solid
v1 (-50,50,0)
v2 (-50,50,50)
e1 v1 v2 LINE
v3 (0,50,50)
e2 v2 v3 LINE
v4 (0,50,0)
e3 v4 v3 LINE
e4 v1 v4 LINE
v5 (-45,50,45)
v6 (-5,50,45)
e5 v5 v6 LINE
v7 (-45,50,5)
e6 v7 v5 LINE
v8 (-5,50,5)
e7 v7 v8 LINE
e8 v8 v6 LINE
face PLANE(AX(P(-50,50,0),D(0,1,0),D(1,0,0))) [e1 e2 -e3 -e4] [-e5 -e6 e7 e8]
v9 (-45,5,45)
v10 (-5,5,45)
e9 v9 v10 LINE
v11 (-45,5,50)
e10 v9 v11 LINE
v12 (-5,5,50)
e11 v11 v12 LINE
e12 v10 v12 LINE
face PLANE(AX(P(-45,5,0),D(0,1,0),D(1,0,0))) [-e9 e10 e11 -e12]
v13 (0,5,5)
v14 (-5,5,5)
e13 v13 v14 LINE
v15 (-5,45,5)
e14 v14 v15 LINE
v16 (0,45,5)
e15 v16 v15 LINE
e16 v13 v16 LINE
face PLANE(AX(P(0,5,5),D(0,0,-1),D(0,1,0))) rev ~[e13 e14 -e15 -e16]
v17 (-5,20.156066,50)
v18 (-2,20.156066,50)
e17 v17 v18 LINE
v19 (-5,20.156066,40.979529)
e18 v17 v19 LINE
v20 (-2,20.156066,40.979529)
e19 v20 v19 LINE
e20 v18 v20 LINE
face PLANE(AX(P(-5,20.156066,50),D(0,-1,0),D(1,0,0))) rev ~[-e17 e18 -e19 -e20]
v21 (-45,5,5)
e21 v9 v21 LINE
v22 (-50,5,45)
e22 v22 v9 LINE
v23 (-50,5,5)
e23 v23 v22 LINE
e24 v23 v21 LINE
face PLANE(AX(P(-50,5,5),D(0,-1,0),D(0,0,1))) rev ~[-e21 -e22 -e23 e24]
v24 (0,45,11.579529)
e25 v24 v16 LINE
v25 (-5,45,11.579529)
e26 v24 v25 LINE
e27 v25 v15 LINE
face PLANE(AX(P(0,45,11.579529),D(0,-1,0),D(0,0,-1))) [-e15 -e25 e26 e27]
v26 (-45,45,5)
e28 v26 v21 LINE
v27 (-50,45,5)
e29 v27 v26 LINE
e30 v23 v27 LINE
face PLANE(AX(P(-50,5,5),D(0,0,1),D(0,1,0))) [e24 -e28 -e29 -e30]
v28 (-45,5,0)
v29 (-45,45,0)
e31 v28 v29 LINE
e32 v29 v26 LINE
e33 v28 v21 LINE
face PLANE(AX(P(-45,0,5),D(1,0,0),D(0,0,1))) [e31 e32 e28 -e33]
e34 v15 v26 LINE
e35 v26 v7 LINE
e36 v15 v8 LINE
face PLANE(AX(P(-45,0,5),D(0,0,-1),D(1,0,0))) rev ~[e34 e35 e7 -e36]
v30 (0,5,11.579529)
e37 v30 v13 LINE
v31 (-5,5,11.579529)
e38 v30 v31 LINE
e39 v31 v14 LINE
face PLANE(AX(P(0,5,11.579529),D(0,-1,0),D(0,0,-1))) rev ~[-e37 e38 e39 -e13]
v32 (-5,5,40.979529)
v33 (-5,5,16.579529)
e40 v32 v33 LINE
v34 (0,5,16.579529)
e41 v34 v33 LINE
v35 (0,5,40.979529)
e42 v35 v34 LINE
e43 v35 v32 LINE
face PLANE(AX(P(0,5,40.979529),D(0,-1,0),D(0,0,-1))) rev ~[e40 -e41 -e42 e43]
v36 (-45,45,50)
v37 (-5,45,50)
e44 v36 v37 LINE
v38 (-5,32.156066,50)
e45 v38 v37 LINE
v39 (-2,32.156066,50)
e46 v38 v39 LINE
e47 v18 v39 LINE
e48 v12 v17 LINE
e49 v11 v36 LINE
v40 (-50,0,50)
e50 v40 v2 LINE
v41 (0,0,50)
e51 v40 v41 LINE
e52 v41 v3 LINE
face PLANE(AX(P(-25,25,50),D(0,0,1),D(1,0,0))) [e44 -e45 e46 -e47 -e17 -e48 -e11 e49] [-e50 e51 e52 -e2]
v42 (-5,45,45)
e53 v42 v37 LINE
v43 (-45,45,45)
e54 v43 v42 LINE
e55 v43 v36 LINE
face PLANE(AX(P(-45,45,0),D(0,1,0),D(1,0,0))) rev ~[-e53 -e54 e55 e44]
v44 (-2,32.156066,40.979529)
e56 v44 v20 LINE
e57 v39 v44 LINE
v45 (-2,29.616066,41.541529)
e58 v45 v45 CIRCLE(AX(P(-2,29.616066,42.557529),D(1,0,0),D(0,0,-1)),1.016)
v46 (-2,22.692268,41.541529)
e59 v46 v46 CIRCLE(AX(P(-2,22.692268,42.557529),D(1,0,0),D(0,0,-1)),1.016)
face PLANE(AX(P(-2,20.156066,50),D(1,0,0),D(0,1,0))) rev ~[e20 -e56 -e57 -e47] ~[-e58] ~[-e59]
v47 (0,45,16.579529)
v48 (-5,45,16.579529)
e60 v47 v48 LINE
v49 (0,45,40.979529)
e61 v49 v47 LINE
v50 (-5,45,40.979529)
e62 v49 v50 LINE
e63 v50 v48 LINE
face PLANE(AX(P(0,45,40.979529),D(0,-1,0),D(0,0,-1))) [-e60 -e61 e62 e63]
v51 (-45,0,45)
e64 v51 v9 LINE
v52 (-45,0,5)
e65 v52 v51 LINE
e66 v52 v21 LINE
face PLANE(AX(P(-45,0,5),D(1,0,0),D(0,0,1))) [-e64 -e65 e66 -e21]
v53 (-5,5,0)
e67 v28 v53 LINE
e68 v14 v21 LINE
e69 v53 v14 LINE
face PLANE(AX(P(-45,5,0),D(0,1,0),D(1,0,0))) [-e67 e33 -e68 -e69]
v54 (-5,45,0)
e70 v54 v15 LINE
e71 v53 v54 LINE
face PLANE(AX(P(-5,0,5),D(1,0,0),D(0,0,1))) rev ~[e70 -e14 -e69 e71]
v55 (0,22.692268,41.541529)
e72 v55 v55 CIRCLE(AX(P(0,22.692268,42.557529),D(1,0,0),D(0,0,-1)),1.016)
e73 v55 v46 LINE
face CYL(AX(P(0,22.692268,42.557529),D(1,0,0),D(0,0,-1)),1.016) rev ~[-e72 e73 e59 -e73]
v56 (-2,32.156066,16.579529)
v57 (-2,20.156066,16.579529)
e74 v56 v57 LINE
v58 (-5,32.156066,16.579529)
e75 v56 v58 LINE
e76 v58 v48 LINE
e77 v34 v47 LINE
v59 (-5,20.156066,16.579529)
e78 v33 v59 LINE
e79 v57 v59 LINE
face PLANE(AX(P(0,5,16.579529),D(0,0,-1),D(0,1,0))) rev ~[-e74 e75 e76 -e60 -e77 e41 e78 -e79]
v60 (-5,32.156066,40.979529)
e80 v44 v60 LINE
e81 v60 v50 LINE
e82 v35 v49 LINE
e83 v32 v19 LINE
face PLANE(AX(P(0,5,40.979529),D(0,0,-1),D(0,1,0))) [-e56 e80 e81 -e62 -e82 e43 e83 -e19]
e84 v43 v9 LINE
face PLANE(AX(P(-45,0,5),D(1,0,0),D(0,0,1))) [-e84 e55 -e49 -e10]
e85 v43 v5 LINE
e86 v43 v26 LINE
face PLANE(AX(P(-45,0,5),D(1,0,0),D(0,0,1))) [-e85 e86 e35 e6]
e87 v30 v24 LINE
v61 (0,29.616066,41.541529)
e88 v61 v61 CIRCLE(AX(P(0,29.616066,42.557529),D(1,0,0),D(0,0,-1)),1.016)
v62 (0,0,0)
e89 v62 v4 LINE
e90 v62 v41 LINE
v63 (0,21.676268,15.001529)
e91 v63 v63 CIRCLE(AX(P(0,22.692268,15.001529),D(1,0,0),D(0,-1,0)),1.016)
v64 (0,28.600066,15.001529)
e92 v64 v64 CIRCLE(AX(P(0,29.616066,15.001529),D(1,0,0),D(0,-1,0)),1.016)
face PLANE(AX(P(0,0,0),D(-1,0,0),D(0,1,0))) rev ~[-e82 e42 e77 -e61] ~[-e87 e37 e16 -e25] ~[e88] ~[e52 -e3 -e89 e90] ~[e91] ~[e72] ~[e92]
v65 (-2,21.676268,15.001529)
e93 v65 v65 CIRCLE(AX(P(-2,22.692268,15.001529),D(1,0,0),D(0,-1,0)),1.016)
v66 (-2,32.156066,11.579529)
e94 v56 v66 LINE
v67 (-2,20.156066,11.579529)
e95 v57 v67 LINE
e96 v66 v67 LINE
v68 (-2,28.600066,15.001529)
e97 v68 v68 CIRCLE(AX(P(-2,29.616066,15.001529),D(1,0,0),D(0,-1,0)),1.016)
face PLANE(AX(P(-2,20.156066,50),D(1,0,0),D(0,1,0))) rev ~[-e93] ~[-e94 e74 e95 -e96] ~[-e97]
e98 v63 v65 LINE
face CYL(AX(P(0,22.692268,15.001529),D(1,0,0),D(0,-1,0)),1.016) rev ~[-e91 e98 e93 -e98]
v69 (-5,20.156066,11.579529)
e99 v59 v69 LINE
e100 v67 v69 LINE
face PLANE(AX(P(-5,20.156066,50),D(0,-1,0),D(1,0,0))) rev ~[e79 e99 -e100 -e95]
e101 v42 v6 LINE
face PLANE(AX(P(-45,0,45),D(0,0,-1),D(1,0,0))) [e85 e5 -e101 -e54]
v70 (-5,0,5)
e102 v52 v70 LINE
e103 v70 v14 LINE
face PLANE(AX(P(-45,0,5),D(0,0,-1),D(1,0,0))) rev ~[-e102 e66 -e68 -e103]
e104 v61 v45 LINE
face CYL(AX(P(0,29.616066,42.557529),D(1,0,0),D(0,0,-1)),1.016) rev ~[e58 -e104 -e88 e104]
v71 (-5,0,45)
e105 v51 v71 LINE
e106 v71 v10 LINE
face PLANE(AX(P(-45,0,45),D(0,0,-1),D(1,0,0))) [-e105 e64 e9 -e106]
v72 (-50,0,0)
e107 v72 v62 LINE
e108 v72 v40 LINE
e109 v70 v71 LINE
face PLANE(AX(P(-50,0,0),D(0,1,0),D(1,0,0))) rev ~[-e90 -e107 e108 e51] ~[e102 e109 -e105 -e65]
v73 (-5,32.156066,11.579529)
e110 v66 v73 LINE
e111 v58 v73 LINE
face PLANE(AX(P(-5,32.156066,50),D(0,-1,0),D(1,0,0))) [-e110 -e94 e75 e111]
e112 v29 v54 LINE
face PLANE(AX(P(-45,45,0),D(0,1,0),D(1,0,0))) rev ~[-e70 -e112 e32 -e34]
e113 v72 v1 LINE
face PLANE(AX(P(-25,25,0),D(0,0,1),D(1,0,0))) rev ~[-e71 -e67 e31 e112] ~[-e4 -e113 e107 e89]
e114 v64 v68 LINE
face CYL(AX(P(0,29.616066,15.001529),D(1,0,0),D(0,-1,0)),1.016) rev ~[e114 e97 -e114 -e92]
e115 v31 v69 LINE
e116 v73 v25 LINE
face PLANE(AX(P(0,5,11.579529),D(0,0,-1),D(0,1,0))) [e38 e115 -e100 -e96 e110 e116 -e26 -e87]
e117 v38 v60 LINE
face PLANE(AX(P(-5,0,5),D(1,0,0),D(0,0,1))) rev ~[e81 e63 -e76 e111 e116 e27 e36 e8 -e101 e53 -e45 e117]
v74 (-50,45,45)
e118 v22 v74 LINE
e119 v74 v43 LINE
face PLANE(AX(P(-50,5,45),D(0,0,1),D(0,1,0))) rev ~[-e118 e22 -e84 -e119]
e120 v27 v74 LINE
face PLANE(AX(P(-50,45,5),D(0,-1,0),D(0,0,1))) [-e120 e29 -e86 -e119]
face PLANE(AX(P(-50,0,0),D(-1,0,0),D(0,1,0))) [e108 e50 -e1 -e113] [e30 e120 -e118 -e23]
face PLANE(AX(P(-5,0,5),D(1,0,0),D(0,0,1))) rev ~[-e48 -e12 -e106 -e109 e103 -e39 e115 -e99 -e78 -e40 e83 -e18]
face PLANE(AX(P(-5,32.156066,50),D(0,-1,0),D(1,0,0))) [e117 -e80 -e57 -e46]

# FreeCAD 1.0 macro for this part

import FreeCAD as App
import Part
import Sketcher

V = App.Vector
Q = App.Units.Quantity

doc = App.newDocument("Part")
params = doc.addObject("Spreadsheet::Sheet", "Params")
for row, (alias, value) in enumerate([
    ("sketch1_width", "50 mm"),
    ("sketch1_width2", "40 mm"),
    ("pad1_length", "50 mm"),
    ("sketch2_width", "40 mm"),
    ("pocket1_length", "50 mm"),
    ("sketch3_width", "40 mm"),
    ("pocket2_length", "10 mm"),
    ("sketch4_width", "40 mm"),
    ("sketch4_height", "24.4 mm"),
    ("pocket3_length", "10 mm"),
    ("pocket4_length", "10 mm"),
    ("sketch6_width", "3 mm"),
    ("sketch6_height", "12 mm"),
    ("pocket5_length", "40 mm"),
], start=1):
    params.set(f"A{row}", alias)
    params.set(f"B{row}", "=" + value)
    params.setAlias(f"B{row}", alias)

body = doc.addObject("PartDesign::Body", "Body")

sketch1 = doc.addObject("Sketcher::SketchObject", "Sketch")
body.addObject(sketch1)
sketch1.AttachmentSupport = (doc.XY_Plane, [""])
sketch1.MapMode = "FlatFace"
sketch1.addGeometry([
    Part.LineSegment(V(-50, 50, 0), V(-50, 0, 0)),
    Part.LineSegment(V(-50, 0, 0), V(0, 0, 0)),
    Part.LineSegment(V(0, 0, 0), V(0, 50, 0)),
    Part.LineSegment(V(0, 50, 0), V(-50, 50, 0)),
    Part.LineSegment(V(-5, 5, 0), V(-45, 5, 0)),
    Part.LineSegment(V(-45, 5, 0), V(-45, 45, 0)),
    Part.LineSegment(V(-45, 45, 0), V(-5, 45, 0)),
    Part.LineSegment(V(-5, 45, 0), V(-5, 5, 0)),
], False)
sketch1.addConstraint([
    Sketcher.Constraint("Coincident", 0, 2, 1, 1),
    Sketcher.Constraint("Coincident", 1, 2, 2, 1),
    Sketcher.Constraint("Coincident", 2, 2, 3, 1),
    Sketcher.Constraint("Coincident", 3, 2, 0, 1),
    Sketcher.Constraint("Coincident", 4, 2, 5, 1),
    Sketcher.Constraint("Coincident", 5, 2, 6, 1),
    Sketcher.Constraint("Coincident", 6, 2, 7, 1),
    Sketcher.Constraint("Coincident", 7, 2, 4, 1),
    Sketcher.Constraint("Vertical", 0),
    Sketcher.Constraint("Horizontal", 1),
    Sketcher.Constraint("Vertical", 2),
    Sketcher.Constraint("Horizontal", 3),
    Sketcher.Constraint("Horizontal", 4),
    Sketcher.Constraint("Vertical", 5),
    Sketcher.Constraint("Horizontal", 6),
    Sketcher.Constraint("Vertical", 7),
    Sketcher.Constraint("Coincident", 1, 2, -1, 1),
    Sketcher.Constraint("Equal", 3, 0),
    Sketcher.Constraint("Equal", 6, 5),
    Sketcher.Constraint("DistanceX", 1, 1, 1, 2, Q("50 mm")),
    Sketcher.Constraint("DistanceX", 4, 2, 4, 1, Q("40 mm")),
    Sketcher.Constraint("DistanceX", 4, 2, -1, 1, Q("45 mm")),
    Sketcher.Constraint("DistanceY", -1, 1, 4, 2, Q("5 mm")),
])
sketch1.setExpression("Constraints[19]", "Params.sketch1_width")
sketch1.setExpression("Constraints[20]", "Params.sketch1_width2")
pad1 = doc.addObject("PartDesign::Pad", "Pad")
body.addObject(pad1)
pad1.Profile = sketch1
pad1.setExpression("Length", "Params.pad1_length")

sketch2 = doc.addObject("Sketcher::SketchObject", "Sketch001")
body.addObject(sketch2)
sketch2.AttachmentSupport = (doc.XZ_Plane, [""])
sketch2.MapMode = "FlatFace"
sketch2.addGeometry([
    Part.LineSegment(V(-45, 45, 0), V(-45, 5, 0)),
    Part.LineSegment(V(-45, 5, 0), V(-5, 5, 0)),
    Part.LineSegment(V(-5, 5, 0), V(-5, 45, 0)),
    Part.LineSegment(V(-5, 45, 0), V(-45, 45, 0)),
], False)
sketch2.addConstraint([
    Sketcher.Constraint("Coincident", 0, 2, 1, 1),
    Sketcher.Constraint("Coincident", 1, 2, 2, 1),
    Sketcher.Constraint("Coincident", 2, 2, 3, 1),
    Sketcher.Constraint("Coincident", 3, 2, 0, 1),
    Sketcher.Constraint("Vertical", 0),
    Sketcher.Constraint("Horizontal", 1),
    Sketcher.Constraint("Vertical", 2),
    Sketcher.Constraint("Horizontal", 3),
    Sketcher.Constraint("Equal", 3, 0),
    Sketcher.Constraint("DistanceX", 1, 1, 1, 2, Q("40 mm")),
    Sketcher.Constraint("DistanceX", 0, 2, -1, 1, Q("45 mm")),
    Sketcher.Constraint("DistanceY", -1, 1, 0, 2, Q("5 mm")),
])
sketch2.setExpression("Constraints[9]", "Params.sketch2_width")
pocket1 = doc.addObject("PartDesign::Pocket", "Pocket")
body.addObject(pocket1)
pocket1.Profile = sketch2
pocket1.setExpression("Length", "Params.pocket1_length")

sketch3 = doc.addObject("Sketcher::SketchObject", "Sketch002")
body.addObject(sketch3)
sketch3.AttachmentSupport = (doc.YZ_Plane, [""])
sketch3.MapMode = "FlatFace"
sketch3.AttachmentOffset = App.Placement(V(0, 0, -50), App.Rotation())
sketch3.addGeometry([
    Part.LineSegment(V(45, 5, 0), V(5, 5, 0)),
    Part.LineSegment(V(5, 5, 0), V(5, 45, 0)),
    Part.LineSegment(V(5, 45, 0), V(45, 45, 0)),
    Part.LineSegment(V(45, 45, 0), V(45, 5, 0)),
], False)
sketch3.addConstraint([
    Sketcher.Constraint("Coincident", 0, 2, 1, 1),
    Sketcher.Constraint("Coincident", 1, 2, 2, 1),
    Sketcher.Constraint("Coincident", 2, 2, 3, 1),
    Sketcher.Constraint("Coincident", 3, 2, 0, 1),
    Sketcher.Constraint("Horizontal", 0),
    Sketcher.Constraint("Vertical", 1),
    Sketcher.Constraint("Horizontal", 2),
    Sketcher.Constraint("Vertical", 3),
    Sketcher.Constraint("Equal", 2, 1),
    Sketcher.Constraint("DistanceX", 0, 2, 0, 1, Q("40 mm")),
    Sketcher.Constraint("DistanceX", -1, 1, 0, 2, Q("5 mm")),
    Sketcher.Constraint("DistanceY", -1, 1, 0, 2, Q("5 mm")),
])
sketch3.setExpression("Constraints[9]", "Params.sketch3_width")
pocket2 = doc.addObject("PartDesign::Pocket", "Pocket001")
body.addObject(pocket2)
pocket2.Profile = sketch3
pocket2.setExpression("Length", "Params.pocket2_length")
pocket2.Reversed = True

sketch4 = doc.addObject("Sketcher::SketchObject", "Sketch003")
body.addObject(sketch4)
sketch4.AttachmentSupport = (doc.YZ_Plane, [""])
sketch4.MapMode = "FlatFace"
sketch4.addGeometry([
    Part.LineSegment(V(45, 41, 0), V(5, 41, 0)),
    Part.LineSegment(V(5, 41, 0), V(5, 17, 0)),
    Part.LineSegment(V(5, 17, 0), V(45, 17, 0)),
    Part.LineSegment(V(45, 17, 0), V(45, 41, 0)),
    Part.LineSegment(V(45, 12, 0), V(5, 12, 0)),
    Part.LineSegment(V(5, 12, 0), V(5, 5, 0)),
    Part.LineSegment(V(5, 5, 0), V(45, 5, 0)),
    Part.LineSegment(V(45, 5, 0), V(45, 12, 0)),
], False)
sketch4.addConstraint([
    Sketcher.Constraint("Coincident", 0, 2, 1, 1),
    Sketcher.Constraint("Coincident", 1, 2, 2, 1),
    Sketcher.Constraint("Coincident", 2, 2, 3, 1),
    Sketcher.Constraint("Coincident", 3, 2, 0, 1),
    Sketcher.Constraint("Coincident", 4, 2, 5, 1),
    Sketcher.Constraint("Coincident", 5, 2, 6, 1),
    Sketcher.Constraint("Coincident", 6, 2, 7, 1),
    Sketcher.Constraint("Coincident", 7, 2, 4, 1),
    Sketcher.Constraint("Horizontal", 0),
    Sketcher.Constraint("Vertical", 1),
    Sketcher.Constraint("Horizontal", 2),
    Sketcher.Constraint("Vertical", 3),
    Sketcher.Constraint("Horizontal", 4),
    Sketcher.Constraint("Vertical", 5),
    Sketcher.Constraint("Horizontal", 6),
    Sketcher.Constraint("Vertical", 7),
    Sketcher.Constraint("Vertical", 1, 2, 4, 2),
    Sketcher.Constraint("Vertical", 3, 2, 6, 2),
    Sketcher.Constraint("DistanceX", 0, 2, 0, 1, Q("40 mm")),
    Sketcher.Constraint("DistanceY", 1, 2, 1, 1, Q("24.4 mm")),
    Sketcher.Constraint("DistanceX", -1, 1, 0, 2, Q("5 mm")),
    Sketcher.Constraint("DistanceY", -1, 1, 5, 2, Q("5 mm")),
    Sketcher.Constraint("DistanceY", 4, 2, 1, 2, Q("5 mm")),
    Sketcher.Constraint("DistanceY", 5, 2, 5, 1, Q("6.579529 mm")),
])
sketch4.setExpression("Constraints[18]", "Params.sketch4_width")
sketch4.setExpression("Constraints[19]", "Params.sketch4_height")
pocket3 = doc.addObject("PartDesign::Pocket", "Pocket002")
body.addObject(pocket3)
pocket3.Profile = sketch4
pocket3.setExpression("Length", "Params.pocket3_length")

sketch5 = doc.addObject("Sketcher::SketchObject", "Sketch004")
body.addObject(sketch5)
sketch5.AttachmentSupport = (doc.YZ_Plane, [""])
sketch5.MapMode = "FlatFace"
sketch5.addGeometry([
    Part.Circle(V(29.6, 42.6, 0), V(0, 0, 1), 1),
    Part.Circle(V(22.7, 42.6, 0), V(0, 0, 1), 1),
    Part.Circle(V(22.7, 15, 0), V(0, 0, 1), 1),
    Part.Circle(V(29.6, 15, 0), V(0, 0, 1), 1),
], False)
sketch5.addConstraint([
    Sketcher.Constraint("Equal", 0, 1),
    Sketcher.Constraint("Equal", 1, 2),
    Sketcher.Constraint("Equal", 2, 3),
    Sketcher.Constraint("Horizontal", 0, 3, 1, 3),
    Sketcher.Constraint("Horizontal", 2, 3, 3, 3),
    Sketcher.Constraint("Vertical", 1, 3, 2, 3),
    Sketcher.Constraint("Vertical", 0, 3, 3, 3),
    Sketcher.Constraint("Diameter", 0, Q("2.032 mm")),
    Sketcher.Constraint("DistanceY", 2, 3, 1, 3, Q("27.556 mm")),
    Sketcher.Constraint("DistanceY", -1, 1, 0, 3, Q("42.557529 mm")),
    Sketcher.Constraint("DistanceX", -1, 1, 1, 3, Q("22.692268 mm")),
    Sketcher.Constraint("DistanceX", -1, 1, 0, 3, Q("29.616066 mm")),
])
pocket4 = doc.addObject("PartDesign::Pocket", "Pocket003")
body.addObject(pocket4)
pocket4.Profile = sketch5
pocket4.setExpression("Length", "Params.pocket4_length")

sketch6 = doc.addObject("Sketcher::SketchObject", "Sketch005")
body.addObject(sketch6)
sketch6.AttachmentSupport = (doc.XY_Plane, [""])
sketch6.MapMode = "FlatFace"
sketch6.AttachmentOffset = App.Placement(V(0, 0, 50), App.Rotation())
sketch6.addGeometry([
    Part.LineSegment(V(-5, 32.2, 0), V(-5, 20.2, 0)),
    Part.LineSegment(V(-5, 20.2, 0), V(-2, 20.2, 0)),
    Part.LineSegment(V(-2, 20.2, 0), V(-2, 32.2, 0)),
    Part.LineSegment(V(-2, 32.2, 0), V(-5, 32.2, 0)),
], False)
sketch6.addConstraint([
    Sketcher.Constraint("Coincident", 0, 2, 1, 1),
    Sketcher.Constraint("Coincident", 1, 2, 2, 1),
    Sketcher.Constraint("Coincident", 2, 2, 3, 1),
    Sketcher.Constraint("Coincident", 3, 2, 0, 1),
    Sketcher.Constraint("Vertical", 0),
    Sketcher.Constraint("Horizontal", 1),
    Sketcher.Constraint("Vertical", 2),
    Sketcher.Constraint("Horizontal", 3),
    Sketcher.Constraint("DistanceX", 1, 1, 1, 2, Q("3 mm")),
    Sketcher.Constraint("DistanceY", 0, 2, 0, 1, Q("12 mm")),
    Sketcher.Constraint("DistanceX", 0, 2, -1, 1, Q("5 mm")),
    Sketcher.Constraint("DistanceY", -1, 1, 0, 2, Q("20.156066 mm")),
])
sketch6.setExpression("Constraints[8]", "Params.sketch6_width")
sketch6.setExpression("Constraints[9]", "Params.sketch6_height")
pocket5 = doc.addObject("PartDesign::Pocket", "Pocket004")
body.addObject(pocket5)
pocket5.Profile = sketch6
pocket5.setExpression("Length", "Params.pocket5_length")

doc.recompute()
